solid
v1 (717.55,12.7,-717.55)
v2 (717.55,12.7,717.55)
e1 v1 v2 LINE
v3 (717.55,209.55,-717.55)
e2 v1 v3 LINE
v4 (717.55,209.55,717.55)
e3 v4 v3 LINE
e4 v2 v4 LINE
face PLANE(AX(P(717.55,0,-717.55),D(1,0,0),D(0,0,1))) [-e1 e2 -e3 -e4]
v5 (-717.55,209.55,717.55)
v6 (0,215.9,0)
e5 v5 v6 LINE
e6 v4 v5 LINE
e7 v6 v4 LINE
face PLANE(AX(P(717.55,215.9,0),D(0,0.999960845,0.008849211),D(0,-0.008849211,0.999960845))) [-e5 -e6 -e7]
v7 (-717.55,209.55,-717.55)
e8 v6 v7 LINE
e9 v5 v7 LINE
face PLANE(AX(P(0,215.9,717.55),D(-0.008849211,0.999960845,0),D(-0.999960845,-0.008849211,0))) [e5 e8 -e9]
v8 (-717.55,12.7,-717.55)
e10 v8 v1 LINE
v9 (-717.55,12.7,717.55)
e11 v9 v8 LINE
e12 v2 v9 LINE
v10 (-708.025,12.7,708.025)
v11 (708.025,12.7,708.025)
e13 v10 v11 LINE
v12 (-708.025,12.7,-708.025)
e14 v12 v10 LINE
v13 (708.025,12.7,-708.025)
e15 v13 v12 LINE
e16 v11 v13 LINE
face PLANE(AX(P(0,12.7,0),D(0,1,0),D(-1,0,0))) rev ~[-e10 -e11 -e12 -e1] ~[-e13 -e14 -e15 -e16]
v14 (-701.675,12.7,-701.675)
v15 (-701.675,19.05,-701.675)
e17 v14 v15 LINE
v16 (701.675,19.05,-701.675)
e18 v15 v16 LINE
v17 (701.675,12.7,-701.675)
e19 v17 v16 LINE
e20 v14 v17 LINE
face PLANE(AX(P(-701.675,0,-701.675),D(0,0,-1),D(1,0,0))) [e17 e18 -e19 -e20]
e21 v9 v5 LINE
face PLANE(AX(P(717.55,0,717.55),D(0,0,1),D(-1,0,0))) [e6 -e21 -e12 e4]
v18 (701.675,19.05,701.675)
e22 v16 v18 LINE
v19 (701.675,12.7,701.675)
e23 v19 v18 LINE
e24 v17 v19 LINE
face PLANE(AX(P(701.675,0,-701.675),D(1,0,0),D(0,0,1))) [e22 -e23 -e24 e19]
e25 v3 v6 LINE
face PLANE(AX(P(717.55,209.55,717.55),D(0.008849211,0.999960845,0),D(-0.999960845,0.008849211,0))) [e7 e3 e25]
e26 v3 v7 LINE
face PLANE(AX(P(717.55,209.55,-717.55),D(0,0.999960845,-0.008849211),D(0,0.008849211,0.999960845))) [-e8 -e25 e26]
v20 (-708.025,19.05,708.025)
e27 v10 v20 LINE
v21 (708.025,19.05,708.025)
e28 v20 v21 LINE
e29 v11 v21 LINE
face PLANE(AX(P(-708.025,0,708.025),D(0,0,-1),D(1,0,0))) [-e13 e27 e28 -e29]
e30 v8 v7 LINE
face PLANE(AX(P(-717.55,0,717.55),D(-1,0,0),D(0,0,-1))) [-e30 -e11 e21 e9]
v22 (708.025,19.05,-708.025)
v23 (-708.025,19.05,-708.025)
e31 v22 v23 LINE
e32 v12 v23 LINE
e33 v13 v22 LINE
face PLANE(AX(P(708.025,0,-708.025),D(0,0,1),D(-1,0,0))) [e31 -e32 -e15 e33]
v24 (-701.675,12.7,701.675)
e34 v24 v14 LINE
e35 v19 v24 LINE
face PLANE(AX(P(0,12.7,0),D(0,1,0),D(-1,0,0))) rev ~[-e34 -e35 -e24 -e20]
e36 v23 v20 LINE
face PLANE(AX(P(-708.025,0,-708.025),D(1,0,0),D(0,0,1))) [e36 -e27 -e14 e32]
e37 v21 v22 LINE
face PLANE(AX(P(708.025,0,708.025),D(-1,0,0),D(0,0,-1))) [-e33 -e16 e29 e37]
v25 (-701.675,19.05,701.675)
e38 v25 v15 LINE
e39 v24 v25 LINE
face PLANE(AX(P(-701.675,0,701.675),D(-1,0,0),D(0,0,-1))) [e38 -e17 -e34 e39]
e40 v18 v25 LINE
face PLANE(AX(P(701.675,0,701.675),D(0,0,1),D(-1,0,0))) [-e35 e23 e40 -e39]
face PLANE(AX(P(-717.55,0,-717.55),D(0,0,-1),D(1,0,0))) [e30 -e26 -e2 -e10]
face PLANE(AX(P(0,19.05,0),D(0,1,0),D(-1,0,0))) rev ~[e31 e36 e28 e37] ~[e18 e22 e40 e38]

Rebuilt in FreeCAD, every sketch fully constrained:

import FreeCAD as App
import Part
import Sketcher
from FreeCAD import Vector
Q = App.Units.Quantity

doc = App.newDocument("Part")
params = doc.addObject("Spreadsheet::Sheet", "Params")
for row, (alias, value) in enumerate([
    ("sketch1_width", "56.5 in"),
    ("pad1_length", "8.5 in"),
    ("sketch2_height", "0.25 in"),
    ("sketch2_width", "28.25 in"),
    ("sketch3_width", "0.25 in"),
    ("sketch3_height", "28.25 in"),
    ("sketch4_width", "55.75 in"),
    ("pocket3_length", "0.75 in"),
    ("sketch5_width", "56.5 in"),
    ("pocket4_length", "0.5 in"),
], start=1):
    params.set(f"A{row}", alias)
    params.set(f"B{row}", "=" + value)
    params.setAlias(f"B{row}", alias)

body = doc.addObject("PartDesign::Body", "Body")

sketch1 = body.newObject("Sketcher::SketchObject", "Sketch")
sketch1.AttachmentSupport = (doc.getObject("XZ_Plane"), [""])
sketch1.MapMode = "FlatFace"
sketch1.addGeometry(Part.LineSegment(Vector(717.55, -717.55, 0), Vector(-717.55, -717.55, 0)), False)
sketch1.addGeometry(Part.LineSegment(Vector(-717.55, -717.55, 0), Vector(-717.55, 717.55, 0)), False)
sketch1.addGeometry(Part.LineSegment(Vector(-717.55, 717.55, 0), Vector(717.55, 717.55, 0)), False)
sketch1.addGeometry(Part.LineSegment(Vector(717.55, 717.55, 0), Vector(717.55, -717.55, 0)), False)
sketch1.addConstraint(Sketcher.Constraint("Coincident", 0, 2, 1, 1))
sketch1.addConstraint(Sketcher.Constraint("Coincident", 1, 2, 2, 1))
sketch1.addConstraint(Sketcher.Constraint("Coincident", 2, 2, 3, 1))
sketch1.addConstraint(Sketcher.Constraint("Coincident", 3, 2, 0, 1))
sketch1.addConstraint(Sketcher.Constraint("Horizontal", 0))
sketch1.addConstraint(Sketcher.Constraint("Vertical", 1))
sketch1.addConstraint(Sketcher.Constraint("Horizontal", 2))
sketch1.addConstraint(Sketcher.Constraint("Vertical", 3))
sketch1.addConstraint(Sketcher.Constraint("Symmetric", 0, 2, 2, 2, -1, 1))
sketch1.addConstraint(Sketcher.Constraint("Equal", 2, 1))
sketch1.addConstraint(Sketcher.Constraint("DistanceX", 0, 2, 0, 1, Q("56.5 in")))
sketch1.setExpression("Constraints[10]", "Params.sketch1_width")
pad1 = body.newObject("PartDesign::Pad", "Pad")
pad1.Profile = sketch1
pad1.setExpression("Length", "Params.pad1_length")
pad1.Reversed = True

sketch2 = body.newObject("Sketcher::SketchObject", "Sketch001")
sketch2.AttachmentSupport = (doc.getObject("XY_Plane"), [""])
sketch2.MapMode = "FlatFace"
sketch2.AttachmentOffset = App.Placement(Vector(0, 0, 28.25 * 25.4), App.Rotation())
sketch2.addGeometry(Part.LineSegment(Vector(-717.55, 215.9, 0), Vector(-717.55, 209.55, 0)), False)
sketch2.addGeometry(Part.LineSegment(Vector(-717.55, 209.55, 0), Vector(0, 215.9, 0)), False)
sketch2.addGeometry(Part.LineSegment(Vector(0, 215.9, 0), Vector(-717.55, 215.9, 0)), False)
sketch2.addGeometry(Part.LineSegment(Vector(0, 215.9, 0), Vector(717.55, 209.55, 0)), False)
sketch2.addGeometry(Part.LineSegment(Vector(717.55, 209.55, 0), Vector(717.55, 215.9, 0)), False)
sketch2.addGeometry(Part.LineSegment(Vector(717.55, 215.9, 0), Vector(0, 215.9, 0)), False)
sketch2.addConstraint(Sketcher.Constraint("Coincident", 0, 2, 1, 1))
sketch2.addConstraint(Sketcher.Constraint("Coincident", 1, 2, 2, 1))
sketch2.addConstraint(Sketcher.Constraint("Coincident", 2, 2, 0, 1))
sketch2.addConstraint(Sketcher.Constraint("Coincident", 3, 2, 4, 1))
sketch2.addConstraint(Sketcher.Constraint("Coincident", 4, 2, 5, 1))
sketch2.addConstraint(Sketcher.Constraint("Coincident", 5, 2, 3, 1))
sketch2.addConstraint(Sketcher.Constraint("Vertical", 0))
sketch2.addConstraint(Sketcher.Constraint("Horizontal", 2))
sketch2.addConstraint(Sketcher.Constraint("Vertical", 4))
sketch2.addConstraint(Sketcher.Constraint("Horizontal", 5))
sketch2.addConstraint(Sketcher.Constraint("Coincident", 5, 2, 1, 2))
sketch2.addConstraint(Sketcher.Constraint("Symmetric", 0, 2, 3, 2, -2))
sketch2.addConstraint(Sketcher.Constraint("PointOnObject", 1, 2, -2))
sketch2.addConstraint(Sketcher.Constraint("DistanceY", 0, 2, 0, 1, Q("0.25 in")))
sketch2.addConstraint(Sketcher.Constraint("DistanceX", 2, 2, 2, 1, Q("28.25 in")))
sketch2.addConstraint(Sketcher.Constraint("DistanceY", -1, 1, 1, 2, Q("8.5 in")))
sketch2.setExpression("Constraints[13]", "Params.sketch2_height")
sketch2.setExpression("Constraints[14]", "Params.sketch2_width")
pocket1 = body.newObject("PartDesign::Pocket", "Pocket")
pocket1.Profile = sketch2
pocket1.Type = "ThroughAll"

sketch3 = body.newObject("Sketcher::SketchObject", "Sketch002")
sketch3.AttachmentSupport = (doc.getObject("YZ_Plane"), [""])
sketch3.MapMode = "FlatFace"
sketch3.AttachmentOffset = App.Placement(Vector(0, 0, 28.25 * 25.4), App.Rotation())
sketch3.addGeometry(Part.LineSegment(Vector(215.9, 717.55, 0), Vector(209.55, 717.55, 0)), False)
sketch3.addGeometry(Part.LineSegment(Vector(209.55, 717.55, 0), Vector(215.9, 0, 0)), False)
sketch3.addGeometry(Part.LineSegment(Vector(215.9, 0, 0), Vector(215.9, 717.55, 0)), False)
sketch3.addGeometry(Part.LineSegment(Vector(215.9, 0, 0), Vector(209.55, -717.55, 0)), False)
sketch3.addGeometry(Part.LineSegment(Vector(209.55, -717.55, 0), Vector(215.9, -717.55, 0)), False)
sketch3.addGeometry(Part.LineSegment(Vector(215.9, -717.55, 0), Vector(215.9, 0, 0)), False)
sketch3.addConstraint(Sketcher.Constraint("Coincident", 0, 2, 1, 1))
sketch3.addConstraint(Sketcher.Constraint("Coincident", 1, 2, 2, 1))
sketch3.addConstraint(Sketcher.Constraint("Coincident", 2, 2, 0, 1))
sketch3.addConstraint(Sketcher.Constraint("Coincident", 3, 2, 4, 1))
sketch3.addConstraint(Sketcher.Constraint("Coincident", 4, 2, 5, 1))
sketch3.addConstraint(Sketcher.Constraint("Coincident", 5, 2, 3, 1))
sketch3.addConstraint(Sketcher.Constraint("Horizontal", 0))
sketch3.addConstraint(Sketcher.Constraint("Vertical", 2))
sketch3.addConstraint(Sketcher.Constraint("Horizontal", 4))
sketch3.addConstraint(Sketcher.Constraint("Vertical", 5))
sketch3.addConstraint(Sketcher.Constraint("Coincident", 5, 2, 1, 2))
sketch3.addConstraint(Sketcher.Constraint("Symmetric", 0, 2, 3, 2, -1))
sketch3.addConstraint(Sketcher.Constraint("PointOnObject", 1, 2, -1))
sketch3.addConstraint(Sketcher.Constraint("DistanceX", 0, 2, 0, 1, Q("0.25 in")))
sketch3.addConstraint(Sketcher.Constraint("DistanceY", 2, 1, 2, 2, Q("28.25 in")))
sketch3.addConstraint(Sketcher.Constraint("DistanceX", -1, 1, 1, 2, Q("8.5 in")))
sketch3.setExpression("Constraints[13]", "Params.sketch3_width")
sketch3.setExpression("Constraints[14]", "Params.sketch3_height")
pocket2 = body.newObject("PartDesign::Pocket", "Pocket001")
pocket2.Profile = sketch3
pocket2.Type = "ThroughAll"

sketch4 = body.newObject("Sketcher::SketchObject", "Sketch003")
sketch4.AttachmentSupport = (doc.getObject("XZ_Plane"), [""])
sketch4.MapMode = "FlatFace"
sketch4.addGeometry(Part.LineSegment(Vector(708.025, 708.025, 0), Vector(708.025, -708.025, 0)), False)
sketch4.addGeometry(Part.LineSegment(Vector(708.025, -708.025, 0), Vector(-708.025, -708.025, 0)), False)
sketch4.addGeometry(Part.LineSegment(Vector(-708.025, -708.025, 0), Vector(-708.025, 708.025, 0)), False)
sketch4.addGeometry(Part.LineSegment(Vector(-708.025, 708.025, 0), Vector(708.025, 708.025, 0)), False)
sketch4.addGeometry(Part.LineSegment(Vector(-701.675, 701.675, 0), Vector(-701.675, -701.675, 0)), False)
sketch4.addGeometry(Part.LineSegment(Vector(-701.675, -701.675, 0), Vector(701.675, -701.675, 0)), False)
sketch4.addGeometry(Part.LineSegment(Vector(701.675, -701.675, 0), Vector(701.675, 701.675, 0)), False)
sketch4.addGeometry(Part.LineSegment(Vector(701.675, 701.675, 0), Vector(-701.675, 701.675, 0)), False)
sketch4.addConstraint(Sketcher.Constraint("Coincident", 0, 2, 1, 1))
sketch4.addConstraint(Sketcher.Constraint("Coincident", 1, 2, 2, 1))
sketch4.addConstraint(Sketcher.Constraint("Coincident", 2, 2, 3, 1))
sketch4.addConstraint(Sketcher.Constraint("Coincident", 3, 2, 0, 1))
sketch4.addConstraint(Sketcher.Constraint("Coincident", 4, 2, 5, 1))
sketch4.addConstraint(Sketcher.Constraint("Coincident", 5, 2, 6, 1))
sketch4.addConstraint(Sketcher.Constraint("Coincident", 6, 2, 7, 1))
sketch4.addConstraint(Sketcher.Constraint("Coincident", 7, 2, 4, 1))
sketch4.addConstraint(Sketcher.Constraint("Vertical", 0))
sketch4.addConstraint(Sketcher.Constraint("Horizontal", 1))
sketch4.addConstraint(Sketcher.Constraint("Vertical", 2))
sketch4.addConstraint(Sketcher.Constraint("Horizontal", 3))
sketch4.addConstraint(Sketcher.Constraint("Vertical", 4))
sketch4.addConstraint(Sketcher.Constraint("Horizontal", 5))
sketch4.addConstraint(Sketcher.Constraint("Vertical", 6))
sketch4.addConstraint(Sketcher.Constraint("Horizontal", 7))
sketch4.addConstraint(Sketcher.Constraint("Symmetric", 0, 2, 2, 2, -1, 1))
sketch4.addConstraint(Sketcher.Constraint("Symmetric", 4, 2, 6, 2, -1, 1))
sketch4.addConstraint(Sketcher.Constraint("Equal", 3, 0))
sketch4.addConstraint(Sketcher.Constraint("Equal", 7, 4))
sketch4.addConstraint(Sketcher.Constraint("DistanceX", 1, 2, 4, 2, Q("0.25 in")))
sketch4.addConstraint(Sketcher.Constraint("DistanceX", 1, 2, 1, 1, Q("55.75 in")))
sketch4.setExpression("Constraints[21]", "Params.sketch4_width")
pocket3 = body.newObject("PartDesign::Pocket", "Pocket002")
pocket3.Profile = sketch4
pocket3.setExpression("Length", "Params.pocket3_length")

sketch5 = body.newObject("Sketcher::SketchObject", "Sketch004")
sketch5.AttachmentSupport = (doc.getObject("XZ_Plane"), [""])
sketch5.MapMode = "FlatFace"
sketch5.addGeometry(Part.LineSegment(Vector(717.55, -717.55, 0), Vector(-717.55, -717.55, 0)), False)
sketch5.addGeometry(Part.LineSegment(Vector(-717.55, -717.55, 0), Vector(-717.55, 717.55, 0)), False)
sketch5.addGeometry(Part.LineSegment(Vector(-717.55, 717.55, 0), Vector(717.55, 717.55, 0)), False)
sketch5.addGeometry(Part.LineSegment(Vector(717.55, 717.55, 0), Vector(717.55, -717.55, 0)), False)
sketch5.addGeometry(Part.LineSegment(Vector(-708.025, -708.025, 0), Vector(708.025, -708.025, 0)), False)
sketch5.addGeometry(Part.LineSegment(Vector(708.025, -708.025, 0), Vector(708.025, 708.025, 0)), False)
sketch5.addGeometry(Part.LineSegment(Vector(708.025, 708.025, 0), Vector(-708.025, 708.025, 0)), False)
sketch5.addGeometry(Part.LineSegment(Vector(-708.025, 708.025, 0), Vector(-708.025, -708.025, 0)), False)
sketch5.addGeometry(Part.LineSegment(Vector(701.675, -701.675, 0), Vector(-701.675, -701.675, 0)), False)
sketch5.addGeometry(Part.LineSegment(Vector(-701.675, -701.675, 0), Vector(-701.675, 701.675, 0)), False)
sketch5.addGeometry(Part.LineSegment(Vector(-701.675, 701.675, 0), Vector(701.675, 701.675, 0)), False)
sketch5.addGeometry(Part.LineSegment(Vector(701.675, 701.675, 0), Vector(701.675, -701.675, 0)), False)
sketch5.addConstraint(Sketcher.Constraint("Coincident", 0, 2, 1, 1))
sketch5.addConstraint(Sketcher.Constraint("Coincident", 1, 2, 2, 1))
sketch5.addConstraint(Sketcher.Constraint("Coincident", 2, 2, 3, 1))
sketch5.addConstraint(Sketcher.Constraint("Coincident", 3, 2, 0, 1))
sketch5.addConstraint(Sketcher.Constraint("Coincident", 4, 2, 5, 1))
sketch5.addConstraint(Sketcher.Constraint("Coincident", 5, 2, 6, 1))
sketch5.addConstraint(Sketcher.Constraint("Coincident", 6, 2, 7, 1))
sketch5.addConstraint(Sketcher.Constraint("Coincident", 7, 2, 4, 1))
sketch5.addConstraint(Sketcher.Constraint("Coincident", 8, 2, 9, 1))
sketch5.addConstraint(Sketcher.Constraint("Coincident", 9, 2, 10, 1))
sketch5.addConstraint(Sketcher.Constraint("Coincident", 10, 2, 11, 1))
sketch5.addConstraint(Sketcher.Constraint("Coincident", 11, 2, 8, 1))
sketch5.addConstraint(Sketcher.Constraint("Horizontal", 0))
sketch5.addConstraint(Sketcher.Constraint("Vertical", 1))
sketch5.addConstraint(Sketcher.Constraint("Horizontal", 2))
sketch5.addConstraint(Sketcher.Constraint("Vertical", 3))
sketch5.addConstraint(Sketcher.Constraint("Horizontal", 4))
sketch5.addConstraint(Sketcher.Constraint("Vertical", 5))
sketch5.addConstraint(Sketcher.Constraint("Horizontal", 6))
sketch5.addConstraint(Sketcher.Constraint("Vertical", 7))
sketch5.addConstraint(Sketcher.Constraint("Horizontal", 8))
sketch5.addConstraint(Sketcher.Constraint("Vertical", 9))
sketch5.addConstraint(Sketcher.Constraint("Horizontal", 10))
sketch5.addConstraint(Sketcher.Constraint("Vertical", 11))
sketch5.addConstraint(Sketcher.Constraint("Symmetric", 0, 2, 2, 2, -1, 1))
sketch5.addConstraint(Sketcher.Constraint("Symmetric", 4, 2, 6, 2, -1, 1))
sketch5.addConstraint(Sketcher.Constraint("Symmetric", 8, 2, 10, 2, -1, 1))
sketch5.addConstraint(Sketcher.Constraint("Equal", 2, 1))
sketch5.addConstraint(Sketcher.Constraint("Equal", 6, 5))
sketch5.addConstraint(Sketcher.Constraint("Equal", 10, 9))
sketch5.addConstraint(Sketcher.Constraint("DistanceX", 0, 2, 0, 1, Q("56.5 in")))
sketch5.addConstraint(Sketcher.Constraint("DistanceX", 7, 2, 8, 2, Q("0.25 in")))
sketch5.addConstraint(Sketcher.Constraint("DistanceX", 4, 2, 3, 2, Q("0.375 in")))
sketch5.setExpression("Constraints[30]", "Params.sketch5_width")
pocket4 = body.newObject("PartDesign::Pocket", "Pocket003")
pocket4.Profile = sketch5
pocket4.setExpression("Length", "Params.pocket4_length")

doc.recompute()
